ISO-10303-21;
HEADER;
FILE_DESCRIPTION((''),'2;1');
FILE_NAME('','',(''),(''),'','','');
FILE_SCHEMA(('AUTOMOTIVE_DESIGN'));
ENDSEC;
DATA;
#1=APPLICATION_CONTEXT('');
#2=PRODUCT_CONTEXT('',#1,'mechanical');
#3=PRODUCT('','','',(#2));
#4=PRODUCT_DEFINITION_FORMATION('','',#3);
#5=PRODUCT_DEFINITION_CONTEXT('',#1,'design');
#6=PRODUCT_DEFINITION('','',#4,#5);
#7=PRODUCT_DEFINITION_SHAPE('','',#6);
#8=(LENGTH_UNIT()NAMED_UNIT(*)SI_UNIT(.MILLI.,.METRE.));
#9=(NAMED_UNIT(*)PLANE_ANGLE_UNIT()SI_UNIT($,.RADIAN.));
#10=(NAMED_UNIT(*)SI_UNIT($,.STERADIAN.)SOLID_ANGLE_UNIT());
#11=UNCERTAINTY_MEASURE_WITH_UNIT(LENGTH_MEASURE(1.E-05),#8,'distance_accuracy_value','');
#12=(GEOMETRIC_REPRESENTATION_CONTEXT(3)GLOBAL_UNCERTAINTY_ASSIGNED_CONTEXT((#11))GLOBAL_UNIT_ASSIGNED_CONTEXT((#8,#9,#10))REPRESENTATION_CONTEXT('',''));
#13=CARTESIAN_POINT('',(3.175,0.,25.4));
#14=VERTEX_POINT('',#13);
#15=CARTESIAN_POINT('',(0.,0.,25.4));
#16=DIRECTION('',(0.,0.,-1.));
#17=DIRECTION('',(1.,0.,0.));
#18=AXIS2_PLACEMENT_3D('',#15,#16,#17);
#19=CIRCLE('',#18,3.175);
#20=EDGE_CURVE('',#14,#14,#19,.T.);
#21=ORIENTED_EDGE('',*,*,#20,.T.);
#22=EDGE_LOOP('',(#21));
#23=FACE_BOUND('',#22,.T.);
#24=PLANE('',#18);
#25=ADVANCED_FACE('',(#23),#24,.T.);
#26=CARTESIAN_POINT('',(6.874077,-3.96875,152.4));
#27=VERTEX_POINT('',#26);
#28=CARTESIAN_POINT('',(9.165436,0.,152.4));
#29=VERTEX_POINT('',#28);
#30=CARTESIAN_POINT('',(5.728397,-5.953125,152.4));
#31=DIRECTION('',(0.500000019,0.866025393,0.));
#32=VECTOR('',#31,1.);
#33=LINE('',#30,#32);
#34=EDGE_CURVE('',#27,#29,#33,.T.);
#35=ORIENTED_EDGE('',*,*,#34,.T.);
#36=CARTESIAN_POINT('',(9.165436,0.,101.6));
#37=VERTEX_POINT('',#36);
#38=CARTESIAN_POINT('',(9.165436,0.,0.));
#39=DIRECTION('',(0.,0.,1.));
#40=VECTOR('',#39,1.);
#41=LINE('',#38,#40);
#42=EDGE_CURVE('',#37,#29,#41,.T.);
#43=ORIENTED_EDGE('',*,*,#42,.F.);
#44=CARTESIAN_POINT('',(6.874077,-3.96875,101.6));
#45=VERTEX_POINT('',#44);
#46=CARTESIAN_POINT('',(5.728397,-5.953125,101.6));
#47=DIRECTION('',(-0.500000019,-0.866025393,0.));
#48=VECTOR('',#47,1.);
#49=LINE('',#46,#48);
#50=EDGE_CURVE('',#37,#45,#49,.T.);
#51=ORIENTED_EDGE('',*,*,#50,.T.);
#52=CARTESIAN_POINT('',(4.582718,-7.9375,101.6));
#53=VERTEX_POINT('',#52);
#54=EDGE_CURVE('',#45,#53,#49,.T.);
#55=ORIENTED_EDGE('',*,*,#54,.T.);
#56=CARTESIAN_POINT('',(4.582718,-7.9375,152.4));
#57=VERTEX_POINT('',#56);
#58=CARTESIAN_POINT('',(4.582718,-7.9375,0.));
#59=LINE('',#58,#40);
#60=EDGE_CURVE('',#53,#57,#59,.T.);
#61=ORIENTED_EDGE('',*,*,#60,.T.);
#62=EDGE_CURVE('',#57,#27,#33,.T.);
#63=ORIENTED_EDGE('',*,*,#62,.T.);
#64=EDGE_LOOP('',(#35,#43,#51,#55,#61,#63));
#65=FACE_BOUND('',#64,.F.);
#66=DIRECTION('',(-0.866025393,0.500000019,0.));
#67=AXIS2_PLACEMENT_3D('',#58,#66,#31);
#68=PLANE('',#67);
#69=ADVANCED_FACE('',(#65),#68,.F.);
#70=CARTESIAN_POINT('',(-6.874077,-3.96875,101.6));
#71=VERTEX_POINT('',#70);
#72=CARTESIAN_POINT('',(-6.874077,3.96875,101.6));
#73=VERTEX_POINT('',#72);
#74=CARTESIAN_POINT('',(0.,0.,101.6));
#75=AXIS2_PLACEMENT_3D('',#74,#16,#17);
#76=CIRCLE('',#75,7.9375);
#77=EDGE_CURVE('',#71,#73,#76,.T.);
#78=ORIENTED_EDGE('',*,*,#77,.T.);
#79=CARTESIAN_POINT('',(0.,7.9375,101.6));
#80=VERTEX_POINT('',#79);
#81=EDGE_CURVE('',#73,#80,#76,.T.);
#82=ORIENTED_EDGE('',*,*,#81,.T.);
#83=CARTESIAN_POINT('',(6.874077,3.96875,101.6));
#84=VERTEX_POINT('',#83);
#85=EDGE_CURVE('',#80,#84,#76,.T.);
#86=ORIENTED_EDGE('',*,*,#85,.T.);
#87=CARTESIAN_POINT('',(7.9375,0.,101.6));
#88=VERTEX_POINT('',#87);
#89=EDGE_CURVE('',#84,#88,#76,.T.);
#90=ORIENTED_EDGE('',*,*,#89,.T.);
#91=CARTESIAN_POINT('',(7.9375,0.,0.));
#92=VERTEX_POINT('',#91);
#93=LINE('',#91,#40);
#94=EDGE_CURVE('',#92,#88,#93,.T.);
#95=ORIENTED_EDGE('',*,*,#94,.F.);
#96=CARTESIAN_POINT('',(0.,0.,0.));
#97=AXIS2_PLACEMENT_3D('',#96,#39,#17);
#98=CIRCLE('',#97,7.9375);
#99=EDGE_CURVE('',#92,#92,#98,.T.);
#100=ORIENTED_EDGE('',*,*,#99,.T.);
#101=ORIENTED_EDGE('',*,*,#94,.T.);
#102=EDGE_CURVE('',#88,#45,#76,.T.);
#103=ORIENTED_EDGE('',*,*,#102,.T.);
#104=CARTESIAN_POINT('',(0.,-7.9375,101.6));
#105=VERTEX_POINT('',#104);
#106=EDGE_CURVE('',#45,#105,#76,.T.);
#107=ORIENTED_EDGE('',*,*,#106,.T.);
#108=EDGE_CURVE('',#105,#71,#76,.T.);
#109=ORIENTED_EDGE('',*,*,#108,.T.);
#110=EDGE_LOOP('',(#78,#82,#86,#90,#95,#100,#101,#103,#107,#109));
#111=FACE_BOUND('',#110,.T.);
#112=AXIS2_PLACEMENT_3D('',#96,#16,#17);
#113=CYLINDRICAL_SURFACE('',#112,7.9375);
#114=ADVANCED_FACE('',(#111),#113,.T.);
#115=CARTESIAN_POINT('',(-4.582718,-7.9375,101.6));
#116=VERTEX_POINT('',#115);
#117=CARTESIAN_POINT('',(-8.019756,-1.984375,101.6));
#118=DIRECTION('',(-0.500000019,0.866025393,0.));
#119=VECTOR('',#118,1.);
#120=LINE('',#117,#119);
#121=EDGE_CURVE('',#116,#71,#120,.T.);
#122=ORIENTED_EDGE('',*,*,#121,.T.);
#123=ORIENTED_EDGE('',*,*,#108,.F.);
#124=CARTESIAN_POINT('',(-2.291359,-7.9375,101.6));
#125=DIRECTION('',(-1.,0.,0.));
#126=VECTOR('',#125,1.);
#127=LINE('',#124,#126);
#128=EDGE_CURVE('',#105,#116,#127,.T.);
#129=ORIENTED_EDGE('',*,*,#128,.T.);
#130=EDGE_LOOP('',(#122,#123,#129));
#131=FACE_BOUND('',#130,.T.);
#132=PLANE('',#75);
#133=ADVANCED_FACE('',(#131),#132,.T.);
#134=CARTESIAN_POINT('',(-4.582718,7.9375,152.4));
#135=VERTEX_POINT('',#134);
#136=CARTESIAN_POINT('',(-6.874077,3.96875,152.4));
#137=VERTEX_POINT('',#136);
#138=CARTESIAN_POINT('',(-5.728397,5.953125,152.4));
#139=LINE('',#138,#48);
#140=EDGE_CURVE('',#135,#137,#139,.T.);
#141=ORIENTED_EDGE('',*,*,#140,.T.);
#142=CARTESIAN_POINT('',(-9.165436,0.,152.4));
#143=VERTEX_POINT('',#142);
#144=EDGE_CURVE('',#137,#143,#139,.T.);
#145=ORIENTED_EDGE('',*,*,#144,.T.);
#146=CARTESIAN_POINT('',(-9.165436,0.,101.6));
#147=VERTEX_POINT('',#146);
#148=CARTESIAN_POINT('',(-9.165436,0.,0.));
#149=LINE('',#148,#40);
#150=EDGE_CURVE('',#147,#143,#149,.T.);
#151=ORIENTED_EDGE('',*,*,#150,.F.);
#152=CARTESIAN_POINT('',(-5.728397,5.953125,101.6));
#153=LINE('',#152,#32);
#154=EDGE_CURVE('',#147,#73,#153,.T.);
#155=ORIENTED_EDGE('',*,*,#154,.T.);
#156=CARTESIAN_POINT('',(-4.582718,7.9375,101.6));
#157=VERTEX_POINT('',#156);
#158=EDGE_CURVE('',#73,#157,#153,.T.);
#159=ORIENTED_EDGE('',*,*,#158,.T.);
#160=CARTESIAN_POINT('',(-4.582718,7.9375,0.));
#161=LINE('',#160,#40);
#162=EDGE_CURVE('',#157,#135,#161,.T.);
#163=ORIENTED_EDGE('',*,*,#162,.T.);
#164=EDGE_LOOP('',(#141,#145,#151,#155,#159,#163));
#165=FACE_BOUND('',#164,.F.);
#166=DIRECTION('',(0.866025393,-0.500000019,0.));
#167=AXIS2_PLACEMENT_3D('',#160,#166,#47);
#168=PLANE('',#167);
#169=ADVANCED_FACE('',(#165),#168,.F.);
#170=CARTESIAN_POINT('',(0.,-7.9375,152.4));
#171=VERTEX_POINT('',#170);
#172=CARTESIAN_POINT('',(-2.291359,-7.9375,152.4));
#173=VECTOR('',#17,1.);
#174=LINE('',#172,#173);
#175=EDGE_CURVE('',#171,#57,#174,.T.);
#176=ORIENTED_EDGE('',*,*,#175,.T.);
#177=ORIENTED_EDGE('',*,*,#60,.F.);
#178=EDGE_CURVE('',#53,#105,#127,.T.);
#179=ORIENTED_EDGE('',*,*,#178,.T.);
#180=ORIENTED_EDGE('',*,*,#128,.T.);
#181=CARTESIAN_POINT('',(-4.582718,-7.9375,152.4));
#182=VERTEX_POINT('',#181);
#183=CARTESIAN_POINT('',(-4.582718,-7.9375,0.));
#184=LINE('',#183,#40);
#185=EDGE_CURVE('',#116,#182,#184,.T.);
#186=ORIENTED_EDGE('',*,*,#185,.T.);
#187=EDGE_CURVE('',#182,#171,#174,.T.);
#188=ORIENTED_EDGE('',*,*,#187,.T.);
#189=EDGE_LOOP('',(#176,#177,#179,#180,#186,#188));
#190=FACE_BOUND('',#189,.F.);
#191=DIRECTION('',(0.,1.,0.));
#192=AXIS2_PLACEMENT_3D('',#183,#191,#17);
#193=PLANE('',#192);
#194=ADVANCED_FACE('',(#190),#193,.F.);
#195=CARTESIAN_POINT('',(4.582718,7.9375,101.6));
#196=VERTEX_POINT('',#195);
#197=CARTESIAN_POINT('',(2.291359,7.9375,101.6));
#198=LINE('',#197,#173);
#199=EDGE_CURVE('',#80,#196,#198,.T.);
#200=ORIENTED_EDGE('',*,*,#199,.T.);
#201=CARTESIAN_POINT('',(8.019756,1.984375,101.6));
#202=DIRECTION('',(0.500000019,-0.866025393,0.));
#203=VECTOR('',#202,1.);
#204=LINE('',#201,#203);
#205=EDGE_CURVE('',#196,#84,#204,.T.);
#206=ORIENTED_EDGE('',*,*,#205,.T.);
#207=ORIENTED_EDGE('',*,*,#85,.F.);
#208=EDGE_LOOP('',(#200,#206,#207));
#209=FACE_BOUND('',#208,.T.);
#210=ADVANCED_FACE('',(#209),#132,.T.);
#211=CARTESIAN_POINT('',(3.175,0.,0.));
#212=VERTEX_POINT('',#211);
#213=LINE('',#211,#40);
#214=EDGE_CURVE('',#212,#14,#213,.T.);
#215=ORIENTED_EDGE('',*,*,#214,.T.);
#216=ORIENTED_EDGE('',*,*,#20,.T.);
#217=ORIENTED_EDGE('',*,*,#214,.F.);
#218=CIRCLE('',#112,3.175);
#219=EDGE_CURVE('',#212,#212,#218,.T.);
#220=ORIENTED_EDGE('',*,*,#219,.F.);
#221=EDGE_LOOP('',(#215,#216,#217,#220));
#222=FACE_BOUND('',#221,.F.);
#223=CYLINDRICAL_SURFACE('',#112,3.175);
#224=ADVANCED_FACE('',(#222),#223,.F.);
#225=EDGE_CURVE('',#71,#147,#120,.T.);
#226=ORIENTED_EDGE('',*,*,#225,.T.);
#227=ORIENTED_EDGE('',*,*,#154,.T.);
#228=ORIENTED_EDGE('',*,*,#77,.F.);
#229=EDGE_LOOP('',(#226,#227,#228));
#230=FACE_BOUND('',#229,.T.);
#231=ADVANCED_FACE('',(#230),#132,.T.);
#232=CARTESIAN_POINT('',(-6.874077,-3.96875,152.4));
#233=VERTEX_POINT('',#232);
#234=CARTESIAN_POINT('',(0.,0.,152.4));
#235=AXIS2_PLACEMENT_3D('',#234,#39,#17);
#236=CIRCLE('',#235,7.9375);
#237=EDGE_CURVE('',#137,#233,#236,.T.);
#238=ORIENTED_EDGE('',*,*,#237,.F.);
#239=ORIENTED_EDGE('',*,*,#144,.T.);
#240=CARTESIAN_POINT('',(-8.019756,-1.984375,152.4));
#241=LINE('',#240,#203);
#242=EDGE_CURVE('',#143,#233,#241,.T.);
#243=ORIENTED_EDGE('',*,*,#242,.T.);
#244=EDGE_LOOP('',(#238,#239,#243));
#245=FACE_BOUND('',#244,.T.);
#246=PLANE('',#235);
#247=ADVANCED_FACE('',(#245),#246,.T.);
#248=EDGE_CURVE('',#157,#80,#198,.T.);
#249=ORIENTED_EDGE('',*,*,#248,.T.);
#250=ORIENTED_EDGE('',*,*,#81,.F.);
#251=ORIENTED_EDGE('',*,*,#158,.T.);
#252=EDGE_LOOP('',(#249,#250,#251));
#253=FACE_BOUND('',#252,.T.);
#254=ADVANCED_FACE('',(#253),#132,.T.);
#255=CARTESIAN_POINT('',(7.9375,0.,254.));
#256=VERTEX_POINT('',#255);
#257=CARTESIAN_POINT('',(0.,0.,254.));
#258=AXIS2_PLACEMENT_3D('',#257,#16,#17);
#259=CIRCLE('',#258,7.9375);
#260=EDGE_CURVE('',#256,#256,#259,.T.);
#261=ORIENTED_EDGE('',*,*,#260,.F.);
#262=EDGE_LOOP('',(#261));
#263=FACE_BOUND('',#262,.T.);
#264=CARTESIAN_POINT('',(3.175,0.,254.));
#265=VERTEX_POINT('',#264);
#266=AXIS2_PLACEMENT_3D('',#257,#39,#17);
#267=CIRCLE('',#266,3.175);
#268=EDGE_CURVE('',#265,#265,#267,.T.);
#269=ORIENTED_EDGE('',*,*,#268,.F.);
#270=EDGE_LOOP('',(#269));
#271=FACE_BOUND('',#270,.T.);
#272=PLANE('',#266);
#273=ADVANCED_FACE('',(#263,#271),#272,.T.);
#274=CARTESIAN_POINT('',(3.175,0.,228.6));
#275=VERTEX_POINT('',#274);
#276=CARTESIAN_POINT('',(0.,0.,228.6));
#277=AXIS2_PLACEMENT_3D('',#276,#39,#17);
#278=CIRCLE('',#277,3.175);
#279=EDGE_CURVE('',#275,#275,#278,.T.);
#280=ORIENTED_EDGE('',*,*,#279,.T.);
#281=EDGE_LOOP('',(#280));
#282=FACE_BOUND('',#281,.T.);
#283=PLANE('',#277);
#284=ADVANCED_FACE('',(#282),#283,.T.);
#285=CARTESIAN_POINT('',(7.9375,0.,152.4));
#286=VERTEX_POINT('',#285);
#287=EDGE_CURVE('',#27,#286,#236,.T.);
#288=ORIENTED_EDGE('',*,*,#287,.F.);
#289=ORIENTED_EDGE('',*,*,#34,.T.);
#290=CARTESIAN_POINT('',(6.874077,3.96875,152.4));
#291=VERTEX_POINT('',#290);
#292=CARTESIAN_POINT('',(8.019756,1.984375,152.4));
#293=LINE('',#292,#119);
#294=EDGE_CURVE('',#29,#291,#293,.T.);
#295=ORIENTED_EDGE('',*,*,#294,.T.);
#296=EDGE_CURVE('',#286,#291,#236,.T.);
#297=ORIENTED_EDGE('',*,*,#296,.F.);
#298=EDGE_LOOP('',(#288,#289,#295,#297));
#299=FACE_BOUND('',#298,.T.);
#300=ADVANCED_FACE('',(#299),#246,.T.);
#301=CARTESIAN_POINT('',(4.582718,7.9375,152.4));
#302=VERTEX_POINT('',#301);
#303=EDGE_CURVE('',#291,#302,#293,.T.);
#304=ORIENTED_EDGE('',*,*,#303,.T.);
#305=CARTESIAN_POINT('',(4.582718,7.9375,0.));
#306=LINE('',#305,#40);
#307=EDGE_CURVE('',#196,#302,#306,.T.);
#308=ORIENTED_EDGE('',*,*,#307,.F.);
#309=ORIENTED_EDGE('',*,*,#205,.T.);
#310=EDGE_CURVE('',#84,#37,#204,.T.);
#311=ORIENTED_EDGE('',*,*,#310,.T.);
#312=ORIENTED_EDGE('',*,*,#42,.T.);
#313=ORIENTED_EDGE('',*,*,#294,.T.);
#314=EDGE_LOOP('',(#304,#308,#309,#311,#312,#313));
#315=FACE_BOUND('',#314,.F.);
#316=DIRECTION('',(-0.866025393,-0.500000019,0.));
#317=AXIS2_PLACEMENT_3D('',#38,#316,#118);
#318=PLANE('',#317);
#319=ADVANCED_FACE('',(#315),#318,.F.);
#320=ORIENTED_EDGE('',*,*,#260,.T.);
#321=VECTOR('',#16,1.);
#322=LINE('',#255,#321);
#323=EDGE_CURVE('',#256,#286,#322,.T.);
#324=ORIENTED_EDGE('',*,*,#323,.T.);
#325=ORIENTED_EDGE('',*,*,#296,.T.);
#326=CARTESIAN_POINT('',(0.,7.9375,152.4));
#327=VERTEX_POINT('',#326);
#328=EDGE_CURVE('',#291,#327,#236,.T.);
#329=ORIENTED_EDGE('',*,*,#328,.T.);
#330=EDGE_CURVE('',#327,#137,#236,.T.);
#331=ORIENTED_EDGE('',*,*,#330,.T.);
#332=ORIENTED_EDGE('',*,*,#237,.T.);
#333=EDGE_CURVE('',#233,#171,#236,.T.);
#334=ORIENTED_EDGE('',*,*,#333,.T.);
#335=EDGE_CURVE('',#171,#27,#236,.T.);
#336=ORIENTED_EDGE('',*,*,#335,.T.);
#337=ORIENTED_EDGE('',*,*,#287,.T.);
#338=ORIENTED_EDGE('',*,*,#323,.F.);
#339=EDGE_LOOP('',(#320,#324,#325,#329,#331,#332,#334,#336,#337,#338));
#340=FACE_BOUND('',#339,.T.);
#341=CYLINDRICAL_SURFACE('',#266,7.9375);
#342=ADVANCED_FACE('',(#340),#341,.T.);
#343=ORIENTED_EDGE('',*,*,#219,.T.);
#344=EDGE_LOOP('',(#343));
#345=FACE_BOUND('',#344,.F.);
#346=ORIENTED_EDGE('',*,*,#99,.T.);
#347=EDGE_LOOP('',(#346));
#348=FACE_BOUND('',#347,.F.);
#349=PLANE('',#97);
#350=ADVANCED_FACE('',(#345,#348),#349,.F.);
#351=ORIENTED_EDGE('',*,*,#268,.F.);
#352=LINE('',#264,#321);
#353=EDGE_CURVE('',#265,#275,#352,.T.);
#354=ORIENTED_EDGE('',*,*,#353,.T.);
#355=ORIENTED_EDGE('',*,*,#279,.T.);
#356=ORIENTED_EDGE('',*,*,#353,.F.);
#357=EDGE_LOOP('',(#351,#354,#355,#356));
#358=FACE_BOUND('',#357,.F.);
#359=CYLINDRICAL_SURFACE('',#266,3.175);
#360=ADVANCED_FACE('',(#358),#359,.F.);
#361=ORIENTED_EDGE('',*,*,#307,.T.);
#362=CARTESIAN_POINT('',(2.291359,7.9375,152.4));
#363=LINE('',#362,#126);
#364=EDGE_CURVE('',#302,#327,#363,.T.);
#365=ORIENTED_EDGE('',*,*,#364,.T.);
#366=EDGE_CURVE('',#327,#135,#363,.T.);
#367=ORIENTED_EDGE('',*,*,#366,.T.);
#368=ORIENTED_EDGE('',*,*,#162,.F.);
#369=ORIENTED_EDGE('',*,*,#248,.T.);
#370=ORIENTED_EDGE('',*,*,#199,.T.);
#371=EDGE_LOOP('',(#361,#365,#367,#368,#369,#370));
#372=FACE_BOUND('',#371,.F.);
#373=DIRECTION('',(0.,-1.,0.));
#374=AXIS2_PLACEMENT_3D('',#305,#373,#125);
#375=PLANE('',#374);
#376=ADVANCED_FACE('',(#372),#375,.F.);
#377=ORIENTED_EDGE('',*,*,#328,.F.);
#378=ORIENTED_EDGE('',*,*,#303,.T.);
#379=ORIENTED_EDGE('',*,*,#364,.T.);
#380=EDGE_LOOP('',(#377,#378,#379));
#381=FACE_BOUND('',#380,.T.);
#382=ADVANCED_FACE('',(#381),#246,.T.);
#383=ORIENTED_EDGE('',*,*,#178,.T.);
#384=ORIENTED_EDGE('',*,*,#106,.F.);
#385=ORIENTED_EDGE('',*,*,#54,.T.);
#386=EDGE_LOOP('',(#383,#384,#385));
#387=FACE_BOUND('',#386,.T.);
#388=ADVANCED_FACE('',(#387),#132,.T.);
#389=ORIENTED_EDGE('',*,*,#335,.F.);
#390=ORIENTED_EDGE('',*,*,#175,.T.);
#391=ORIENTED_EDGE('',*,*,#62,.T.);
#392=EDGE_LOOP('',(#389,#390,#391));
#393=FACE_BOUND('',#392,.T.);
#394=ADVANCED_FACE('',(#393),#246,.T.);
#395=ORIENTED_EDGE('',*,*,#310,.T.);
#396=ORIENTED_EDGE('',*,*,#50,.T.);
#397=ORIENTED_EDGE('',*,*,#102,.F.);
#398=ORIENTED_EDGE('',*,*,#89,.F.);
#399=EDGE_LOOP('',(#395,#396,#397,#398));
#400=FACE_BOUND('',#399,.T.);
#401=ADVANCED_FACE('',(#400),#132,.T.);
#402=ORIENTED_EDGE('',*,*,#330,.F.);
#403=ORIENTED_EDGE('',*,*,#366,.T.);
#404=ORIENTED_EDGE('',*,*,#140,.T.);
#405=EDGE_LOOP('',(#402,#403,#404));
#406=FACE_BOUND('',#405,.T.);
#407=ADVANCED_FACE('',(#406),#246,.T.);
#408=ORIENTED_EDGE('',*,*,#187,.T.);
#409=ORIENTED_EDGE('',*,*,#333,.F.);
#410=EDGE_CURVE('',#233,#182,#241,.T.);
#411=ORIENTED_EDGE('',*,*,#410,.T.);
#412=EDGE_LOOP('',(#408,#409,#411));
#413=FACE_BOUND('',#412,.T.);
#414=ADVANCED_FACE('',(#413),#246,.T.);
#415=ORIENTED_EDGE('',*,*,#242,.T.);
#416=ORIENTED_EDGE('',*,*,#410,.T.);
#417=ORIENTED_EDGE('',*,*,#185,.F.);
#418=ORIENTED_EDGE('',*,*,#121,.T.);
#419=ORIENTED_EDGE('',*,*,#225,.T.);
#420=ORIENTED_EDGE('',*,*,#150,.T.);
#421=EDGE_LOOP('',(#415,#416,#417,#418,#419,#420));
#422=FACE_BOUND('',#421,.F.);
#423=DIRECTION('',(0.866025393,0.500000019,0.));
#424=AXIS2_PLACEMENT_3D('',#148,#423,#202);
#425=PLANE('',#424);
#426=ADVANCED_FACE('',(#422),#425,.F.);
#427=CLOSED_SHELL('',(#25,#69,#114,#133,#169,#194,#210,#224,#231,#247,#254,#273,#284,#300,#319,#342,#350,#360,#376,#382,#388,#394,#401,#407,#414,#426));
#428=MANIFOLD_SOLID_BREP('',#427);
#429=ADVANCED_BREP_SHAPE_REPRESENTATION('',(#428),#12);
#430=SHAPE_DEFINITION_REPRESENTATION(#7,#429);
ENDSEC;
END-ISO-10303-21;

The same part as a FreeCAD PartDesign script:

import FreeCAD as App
import Part
import Sketcher
from FreeCAD import Vector
Q = App.Units.Quantity

doc = App.newDocument("Part")
body = doc.addObject("PartDesign::Body", "Body")

sketch1 = body.newObject("Sketcher::SketchObject", "Sketch")
sketch1.AttachmentSupport = (doc.getObject("XY_Plane"), [""])
sketch1.MapMode = "FlatFace"
sketch1.addGeometry(Part.LineSegment(Vector(-5, 8, 0), Vector(-9, 0, 0)), False)
sketch1.addGeometry(Part.LineSegment(Vector(-9, 0, 0), Vector(-5, -8, 0)), False)
sketch1.addGeometry(Part.LineSegment(Vector(-5, -8, 0), Vector(5, -8, 0)), False)
sketch1.addGeometry(Part.LineSegment(Vector(5, -8, 0), Vector(9, 0, 0)), False)
sketch1.addGeometry(Part.LineSegment(Vector(9, 0, 0), Vector(5, 8, 0)), False)
sketch1.addGeometry(Part.LineSegment(Vector(5, 8, 0), Vector(-5, 8, 0)), False)
sketch1.addConstraint(Sketcher.Constraint("Coincident", 0, 2, 1, 1))
sketch1.addConstraint(Sketcher.Constraint("Coincident", 1, 2, 2, 1))
sketch1.addConstraint(Sketcher.Constraint("Coincident", 2, 2, 3, 1))
sketch1.addConstraint(Sketcher.Constraint("Coincident", 3, 2, 4, 1))
sketch1.addConstraint(Sketcher.Constraint("Coincident", 4, 2, 5, 1))
sketch1.addConstraint(Sketcher.Constraint("Coincident", 5, 2, 0, 1))
sketch1.addConstraint(Sketcher.Constraint("Horizontal", 2))
sketch1.addConstraint(Sketcher.Constraint("Horizontal", 5))
sketch1.addConstraint(Sketcher.Constraint("Symmetric", 0, 2, 3, 2, -1, 1))
sketch1.addConstraint(Sketcher.Constraint("Symmetric", 1, 2, 4, 2, -1, 1))
sketch1.addConstraint(Sketcher.Constraint("PointOnObject", 0, 2, -1))
sketch1.addConstraint(Sketcher.Constraint("Parallel", 0, 3))
sketch1.addConstraint(Sketcher.Constraint("Vertical", 2, 2, 4, 2))
sketch1.addConstraint(Sketcher.Constraint("Angle", 0, Q("-120.000001 deg")))
sketch1.addConstraint(Sketcher.Constraint("DistanceY", 1, 2, -1, 1, Q("0.3125 in")))
sketch1.addConstraint(Sketcher.Constraint("DistanceX", 2, 1, 2, 2, Q("9.165436 mm")))
pad1 = body.newObject("PartDesign::Pad", "Pad")
pad1.Profile = sketch1
pad1.Length = Q("10 in")

sketch2 = body.newObject("Sketcher::SketchObject", "Sketch001")
sketch2.AttachmentSupport = (doc.getObject("XY_Plane"), [""])
sketch2.MapMode = "FlatFace"
sketch2.AttachmentOffset = App.Placement(Vector(0, 0, 10 * 25.4), App.Rotation())
sketch2.addGeometry(Part.Circle(Vector(0, 0, 0), Vector(0, 0, 1), 9), False)
sketch2.addGeometry(Part.Circle(Vector(0, 0, 0), Vector(0, 0, 1), 8), False)
sketch2.addConstraint(Sketcher.Constraint("Coincident", 0, 3, -1, 1))
sketch2.addConstraint(Sketcher.Constraint("Coincident", 1, 3, -1, 1))
sketch2.addConstraint(Sketcher.Constraint("Diameter", 1, Q("0.625 in")))
sketch2.addConstraint(Sketcher.Constraint("Diameter", 0, Q("18.330872 mm")))
pocket1 = body.newObject("PartDesign::Pocket", "Pocket")
pocket1.Profile = sketch2
pocket1.Length = Q("4 in")

sketch3 = body.newObject("Sketcher::SketchObject", "Sketch002")
sketch3.AttachmentSupport = (doc.getObject("XY_Plane"), [""])
sketch3.MapMode = "FlatFace"
sketch3.addGeometry(Part.Circle(Vector(0, 0, 0), Vector(0, 0, 1), 9), False)
sketch3.addGeometry(Part.Circle(Vector(0, 0, 0), Vector(0, 0, 1), 8), False)
sketch3.addConstraint(Sketcher.Constraint("Coincident", 0, 3, -1, 1))
sketch3.addConstraint(Sketcher.Constraint("Coincident", 1, 3, -1, 1))
sketch3.addConstraint(Sketcher.Constraint("Diameter", 1, Q("0.625 in")))
sketch3.addConstraint(Sketcher.Constraint("Diameter", 0, Q("18.330872 mm")))
pocket2 = body.newObject("PartDesign::Pocket", "Pocket001")
pocket2.Profile = sketch3
pocket2.Length = Q("4 in")
pocket2.Reversed = True

sketch4 = body.newObject("Sketcher::SketchObject", "Sketch003")
sketch4.AttachmentSupport = (doc.getObject("XY_Plane"), [""])
sketch4.MapMode = "FlatFace"
sketch4.addGeometry(Part.Circle(Vector(0, 0, 0), Vector(0, 0, 1), 3.2), False)
sketch4.addConstraint(Sketcher.Constraint("Coincident", 0, 3, -1, 1))
sketch4.addConstraint(Sketcher.Constraint("Diameter", 0, Q("0.25 in")))
pocket3 = body.newObject("PartDesign::Pocket", "Pocket002")
pocket3.Profile = sketch4
pocket3.Length = Q("1 in")
pocket3.Reversed = True

sketch5 = body.newObject("Sketcher::SketchObject", "Sketch004")
sketch5.AttachmentSupport = (doc.getObject("XY_Plane"), [""])
sketch5.MapMode = "FlatFace"
sketch5.AttachmentOffset = App.Placement(Vector(0, 0, 10 * 25.4), App.Rotation())
sketch5.addGeometry(Part.Circle(Vector(0, 0, 0), Vector(0, 0, 1), 3.2), False)
sketch5.addConstraint(Sketcher.Constraint("Coincident", 0, 3, -1, 1))
sketch5.addConstraint(Sketcher.Constraint("Diameter", 0, Q("0.25 in")))
pocket4 = body.newObject("PartDesign::Pocket", "Pocket003")
pocket4.Profile = sketch5
pocket4.Length = Q("1 in")

doc.recompute()
